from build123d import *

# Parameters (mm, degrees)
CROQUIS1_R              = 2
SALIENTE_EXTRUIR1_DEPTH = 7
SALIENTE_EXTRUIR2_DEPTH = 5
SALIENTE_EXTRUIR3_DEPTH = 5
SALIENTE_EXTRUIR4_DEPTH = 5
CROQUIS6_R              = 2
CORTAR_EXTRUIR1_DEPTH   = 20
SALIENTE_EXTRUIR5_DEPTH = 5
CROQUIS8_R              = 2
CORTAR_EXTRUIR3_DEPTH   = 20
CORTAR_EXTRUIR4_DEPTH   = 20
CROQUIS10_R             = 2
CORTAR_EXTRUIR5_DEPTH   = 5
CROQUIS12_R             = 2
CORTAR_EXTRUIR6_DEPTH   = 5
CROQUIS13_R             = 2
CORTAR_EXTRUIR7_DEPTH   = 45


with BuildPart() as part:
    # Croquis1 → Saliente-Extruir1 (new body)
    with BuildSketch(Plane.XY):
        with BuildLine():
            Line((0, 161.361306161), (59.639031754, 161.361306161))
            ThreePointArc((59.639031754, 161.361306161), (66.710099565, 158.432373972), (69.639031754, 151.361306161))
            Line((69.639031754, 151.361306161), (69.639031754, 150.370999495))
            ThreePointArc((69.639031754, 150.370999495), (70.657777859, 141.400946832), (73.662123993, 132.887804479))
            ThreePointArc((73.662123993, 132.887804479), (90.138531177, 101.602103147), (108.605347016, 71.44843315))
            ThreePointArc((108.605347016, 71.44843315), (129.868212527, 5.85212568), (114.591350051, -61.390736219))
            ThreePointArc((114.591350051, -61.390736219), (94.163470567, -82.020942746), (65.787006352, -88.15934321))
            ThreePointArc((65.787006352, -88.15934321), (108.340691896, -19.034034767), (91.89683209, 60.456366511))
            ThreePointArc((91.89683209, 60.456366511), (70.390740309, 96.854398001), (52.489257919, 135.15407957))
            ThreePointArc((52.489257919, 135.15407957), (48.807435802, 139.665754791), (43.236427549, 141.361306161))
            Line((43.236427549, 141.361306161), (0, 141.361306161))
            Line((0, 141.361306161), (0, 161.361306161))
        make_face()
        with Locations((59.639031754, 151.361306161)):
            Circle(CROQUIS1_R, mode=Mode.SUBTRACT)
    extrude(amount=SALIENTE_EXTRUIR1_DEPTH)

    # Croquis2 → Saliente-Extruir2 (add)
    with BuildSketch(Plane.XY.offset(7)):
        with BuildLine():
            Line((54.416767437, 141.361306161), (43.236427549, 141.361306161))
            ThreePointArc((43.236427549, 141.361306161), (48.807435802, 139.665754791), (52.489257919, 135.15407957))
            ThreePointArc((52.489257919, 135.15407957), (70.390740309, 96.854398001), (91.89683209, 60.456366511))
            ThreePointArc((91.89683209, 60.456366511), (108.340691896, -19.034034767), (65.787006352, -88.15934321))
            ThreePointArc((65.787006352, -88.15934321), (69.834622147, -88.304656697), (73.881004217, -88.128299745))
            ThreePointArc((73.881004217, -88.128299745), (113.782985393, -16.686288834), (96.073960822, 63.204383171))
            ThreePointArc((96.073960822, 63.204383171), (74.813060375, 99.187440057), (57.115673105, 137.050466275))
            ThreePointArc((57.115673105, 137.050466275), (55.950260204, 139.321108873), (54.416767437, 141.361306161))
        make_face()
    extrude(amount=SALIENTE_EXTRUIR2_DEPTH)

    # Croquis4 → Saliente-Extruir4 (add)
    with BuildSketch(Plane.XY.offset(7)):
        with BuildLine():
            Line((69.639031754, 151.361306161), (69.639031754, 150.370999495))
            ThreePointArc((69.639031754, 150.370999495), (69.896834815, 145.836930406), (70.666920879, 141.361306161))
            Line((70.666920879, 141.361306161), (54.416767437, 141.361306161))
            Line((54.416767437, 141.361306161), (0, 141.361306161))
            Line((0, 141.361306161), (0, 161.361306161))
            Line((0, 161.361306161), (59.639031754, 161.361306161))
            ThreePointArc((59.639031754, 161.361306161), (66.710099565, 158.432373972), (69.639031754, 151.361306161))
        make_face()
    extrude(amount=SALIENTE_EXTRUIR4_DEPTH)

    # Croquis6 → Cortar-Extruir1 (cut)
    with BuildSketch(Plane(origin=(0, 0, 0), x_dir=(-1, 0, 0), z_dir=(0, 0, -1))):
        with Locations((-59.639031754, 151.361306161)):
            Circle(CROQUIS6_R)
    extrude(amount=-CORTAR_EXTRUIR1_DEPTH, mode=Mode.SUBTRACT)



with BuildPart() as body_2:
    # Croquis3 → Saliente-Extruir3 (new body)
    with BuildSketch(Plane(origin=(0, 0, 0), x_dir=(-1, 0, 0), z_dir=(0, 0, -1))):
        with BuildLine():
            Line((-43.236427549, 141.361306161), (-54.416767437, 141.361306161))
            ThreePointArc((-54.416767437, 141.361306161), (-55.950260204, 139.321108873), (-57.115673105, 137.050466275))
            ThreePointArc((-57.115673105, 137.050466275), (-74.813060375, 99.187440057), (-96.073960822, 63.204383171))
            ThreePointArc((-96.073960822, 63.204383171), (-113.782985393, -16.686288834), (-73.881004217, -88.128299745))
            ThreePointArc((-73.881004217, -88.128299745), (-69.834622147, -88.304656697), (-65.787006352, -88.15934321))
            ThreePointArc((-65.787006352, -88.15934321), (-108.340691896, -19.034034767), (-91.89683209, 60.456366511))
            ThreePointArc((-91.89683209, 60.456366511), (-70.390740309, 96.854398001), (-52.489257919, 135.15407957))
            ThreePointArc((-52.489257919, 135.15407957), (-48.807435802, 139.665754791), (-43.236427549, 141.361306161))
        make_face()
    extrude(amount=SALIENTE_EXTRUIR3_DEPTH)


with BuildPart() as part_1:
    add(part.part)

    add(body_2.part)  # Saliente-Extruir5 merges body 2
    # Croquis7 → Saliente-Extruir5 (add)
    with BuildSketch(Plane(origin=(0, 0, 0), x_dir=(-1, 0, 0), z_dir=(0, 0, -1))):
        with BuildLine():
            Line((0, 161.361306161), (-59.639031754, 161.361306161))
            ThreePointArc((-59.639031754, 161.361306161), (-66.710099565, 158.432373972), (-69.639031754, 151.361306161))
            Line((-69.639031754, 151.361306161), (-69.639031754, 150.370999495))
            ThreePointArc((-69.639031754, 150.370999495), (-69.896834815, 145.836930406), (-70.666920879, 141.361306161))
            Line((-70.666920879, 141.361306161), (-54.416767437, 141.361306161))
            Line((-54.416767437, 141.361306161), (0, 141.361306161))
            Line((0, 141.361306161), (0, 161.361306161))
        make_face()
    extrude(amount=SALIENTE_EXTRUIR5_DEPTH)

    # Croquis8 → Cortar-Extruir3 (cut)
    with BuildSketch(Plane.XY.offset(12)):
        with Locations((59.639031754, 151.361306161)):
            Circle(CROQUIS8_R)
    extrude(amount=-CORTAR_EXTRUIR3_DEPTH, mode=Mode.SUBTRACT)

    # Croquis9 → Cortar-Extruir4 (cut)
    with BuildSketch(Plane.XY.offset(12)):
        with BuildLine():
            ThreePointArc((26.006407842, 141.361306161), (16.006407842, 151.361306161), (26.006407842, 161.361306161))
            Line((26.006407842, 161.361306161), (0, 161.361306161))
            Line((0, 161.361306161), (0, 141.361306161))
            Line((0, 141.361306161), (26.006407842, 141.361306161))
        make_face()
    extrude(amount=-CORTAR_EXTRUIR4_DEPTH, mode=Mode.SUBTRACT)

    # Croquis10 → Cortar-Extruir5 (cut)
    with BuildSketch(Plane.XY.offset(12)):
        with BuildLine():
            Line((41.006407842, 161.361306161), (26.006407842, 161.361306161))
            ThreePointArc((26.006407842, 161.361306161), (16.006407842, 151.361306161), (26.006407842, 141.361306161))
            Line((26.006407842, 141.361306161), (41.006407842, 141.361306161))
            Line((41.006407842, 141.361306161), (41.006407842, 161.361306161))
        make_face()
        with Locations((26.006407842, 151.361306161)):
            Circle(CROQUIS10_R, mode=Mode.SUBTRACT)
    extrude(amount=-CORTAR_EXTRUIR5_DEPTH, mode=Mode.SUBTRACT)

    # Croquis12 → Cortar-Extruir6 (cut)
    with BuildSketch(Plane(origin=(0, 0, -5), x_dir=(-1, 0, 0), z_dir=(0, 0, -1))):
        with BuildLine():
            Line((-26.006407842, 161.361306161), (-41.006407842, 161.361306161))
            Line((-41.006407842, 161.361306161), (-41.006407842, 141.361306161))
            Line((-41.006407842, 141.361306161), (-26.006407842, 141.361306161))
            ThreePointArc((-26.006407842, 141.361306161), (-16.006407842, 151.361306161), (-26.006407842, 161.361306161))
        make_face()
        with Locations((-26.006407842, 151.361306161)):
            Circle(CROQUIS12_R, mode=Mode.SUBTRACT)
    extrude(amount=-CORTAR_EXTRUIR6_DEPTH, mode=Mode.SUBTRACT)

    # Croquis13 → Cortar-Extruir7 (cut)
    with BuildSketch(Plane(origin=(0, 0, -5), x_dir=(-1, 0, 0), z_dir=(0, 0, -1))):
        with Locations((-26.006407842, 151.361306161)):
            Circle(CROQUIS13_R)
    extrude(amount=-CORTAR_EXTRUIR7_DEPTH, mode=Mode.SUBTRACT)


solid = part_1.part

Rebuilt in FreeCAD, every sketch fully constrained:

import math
import FreeCAD as App
import Part
import Sketcher

doc = App.newDocument("Part")
body = doc.addObject("PartDesign::Body", "Body")

# Sketch on XY plane
sketch1 = body.newObject("Sketcher::SketchObject", "Sketch")
sketch1.AttachmentSupport = (doc.getObject("XY_Plane"), [""])
sketch1.MapMode = "FlatFace"
sketch1.addGeometry([
    Part.LineSegment(App.Vector(59.639032, 161.361306, 0), App.Vector(0, 161.361306, 0)),  # 0
    Part.LineSegment(App.Vector(0, 161.361306, 0), App.Vector(0, 141.361306, 0)),  # 1
    Part.LineSegment(App.Vector(0, 141.361306, 0), App.Vector(43.236428, 141.361306, 0)),  # 2
    Part.ArcOfCircle(Part.Circle(App.Vector(43.236428, 131.361306, 0), App.Vector(0, 0, 1), 10), math.radians(22.288927), math.radians(90)),  # 3
    Part.ArcOfCircle(Part.Circle(App.Vector(458.278923, 301.48894, 0), App.Vector(0, 0, 1), 438.557338), math.radians(-157.711073), math.radians(-146.660196)),  # 4
    Part.ArcOfCircle(Part.Circle(App.Vector(0, 0, 0), App.Vector(0, 0, 1), 110), math.radians(-53.268655), math.radians(33.339804)),  # 5
    Part.ArcOfCircle(Part.Circle(App.Vector(69.639032, -37.308151, 0), App.Vector(0, 0, 1), 50.99688), math.radians(-94.331936), math.radians(-28.179566)),  # 6
    Part.ArcOfCircle(Part.Circle(App.Vector(0, 0, 0), App.Vector(0, 0, 1), 130), math.radians(-28.179566), math.radians(33.339804)),  # 7
    Part.ArcOfCircle(Part.Circle(App.Vector(564.759417, 371.539492, 0), App.Vector(0, 0, 1), 546.0139), math.radians(-154.082286), math.radians(-146.660196)),  # 8
    Part.ArcOfCircle(Part.Circle(App.Vector(109.639032, 150.370999, 0), App.Vector(0, 0, 1), 40), math.radians(180), math.radians(205.917714)),  # 9
    Part.LineSegment(App.Vector(69.639032, 150.370999, 0), App.Vector(69.639032, 151.361306, 0)),  # 10
    Part.ArcOfCircle(Part.Circle(App.Vector(59.639032, 151.361306, 0), App.Vector(0, 0, 1), 10), math.radians(0), math.radians(90)),  # 11
    Part.Circle(App.Vector(59.639032, 151.361306, 0), App.Vector(0, 0, 1), 2),  # 12
], False)
sketch1.addConstraint([
    Sketcher.Constraint("Coincident", 0, 2, 1, 1),
    Sketcher.Constraint("Coincident", 1, 2, 2, 1),
    Sketcher.Constraint("Tangent", 2, 2, 3, 2),
    Sketcher.Constraint("Tangent", 3, 1, 4, 1),
    Sketcher.Constraint("Tangent", 4, 2, 5, 2),
    Sketcher.Constraint("Coincident", 5, 1, 6, 1),
    Sketcher.Constraint("Tangent", 6, 2, 7, 1),
    Sketcher.Constraint("Tangent", 7, 2, 8, 2),
    Sketcher.Constraint("Tangent", 8, 1, 9, 2),
    Sketcher.Constraint("Tangent", 9, 1, 10, 1),
    Sketcher.Constraint("Tangent", 10, 2, 11, 1),
    Sketcher.Constraint("Tangent", 11, 2, 0, 1),
    Sketcher.Constraint("Horizontal", 0),
    Sketcher.Constraint("Vertical", 1),
    Sketcher.Constraint("Horizontal", 2),
    Sketcher.Constraint("Vertical", 10),
    Sketcher.Constraint("Coincident", 5, 3, -1, 1),
    Sketcher.Constraint("Coincident", 7, 3, -1, 1),
    Sketcher.Constraint("Coincident", 12, 3, 11, 3),
    Sketcher.Constraint("Equal", 3, 11),
    Sketcher.Constraint("PointOnObject", 0, 2, -2),
    Sketcher.Constraint("Vertical", 6, 3, 9, 1),
    Sketcher.Constraint("Diameter", 12, 4.0),
    Sketcher.Constraint("Radius", 3, 10.0),
    Sketcher.Constraint("Radius", 5, 110.0),
    Sketcher.Constraint("Radius", 7, 130.0),
    Sketcher.Constraint("Radius", 9, 40.0),
    Sketcher.Constraint("DistanceY", 1, 2, 1, 1, 20.0),
    Sketcher.Constraint("Radius", 8, 546.0139),
    Sketcher.Constraint("Radius", 6, 50.99688),
    Sketcher.Constraint("DistanceY", -1, 1, 9, 3, 150.370999),
    Sketcher.Constraint("Radius", 4, 438.557338),
    Sketcher.Constraint("DistanceX", 0, 2, 0, 1, 59.639032),
    Sketcher.Constraint("DistanceX", 2, 1, 2, 2, 43.236428),
    Sketcher.Constraint("DistanceY", 10, 1, 10, 2, 0.990307),
])
pad1 = body.newObject("PartDesign::Pad", "Pad")
pad1.Profile = sketch1
pad1.Length = 7

# Sketch on XY plane
sketch2 = body.newObject("Sketcher::SketchObject", "Sketch001")
sketch2.AttachmentSupport = (doc.getObject("XY_Plane"), [""])
sketch2.MapMode = "FlatFace"
sketch2.AttachmentOffset = App.Placement(App.Vector(0, 0, 7), App.Rotation())
sketch2.addGeometry([
    Part.LineSegment(App.Vector(54.416767, 141.361306, 0), App.Vector(43.236428, 141.361306, 0)),  # 0
    Part.ArcOfCircle(Part.Circle(App.Vector(43.236428, 131.361306, 0), App.Vector(0, 0, 1), 10), math.radians(22.288927), math.radians(90)),  # 1
    Part.ArcOfCircle(Part.Circle(App.Vector(458.278923, 301.48894, 0), App.Vector(0, 0, 1), 438.557338), math.radians(-157.711073), math.radians(-146.660196)),  # 2
    Part.ArcOfCircle(Part.Circle(App.Vector(0, 0, 0), App.Vector(0, 0, 1), 110), math.radians(-53.268655), math.radians(33.339804)),  # 3
    Part.ArcOfCircle(Part.Circle(App.Vector(69.639032, -37.308151, 0), App.Vector(0, 0, 1), 50.996881), math.radians(-94.331936), math.radians(-85.228566)),  # 4
    Part.ArcOfCircle(Part.Circle(App.Vector(0, 0, 0), App.Vector(0, 0, 1), 115), math.radians(-50.025731), math.radians(33.339804)),  # 5
    Part.ArcOfCircle(Part.Circle(App.Vector(458.278923, 301.48894, 0), App.Vector(0, 0, 1), 433.557337), math.radians(-157.711073), math.radians(-146.660196)),  # 6
    Part.ArcOfCircle(Part.Circle(App.Vector(43.236428, 131.361306, 0), App.Vector(0, 0, 1), 15), math.radians(22.288927), math.radians(41.810315)),  # 7
], False)
sketch2.addConstraint([
    Sketcher.Constraint("Tangent", 0, 2, 1, 2),
    Sketcher.Constraint("Tangent", 1, 1, 2, 1),
    Sketcher.Constraint("Tangent", 2, 2, 3, 2),
    Sketcher.Constraint("Coincident", 3, 1, 4, 1),
    Sketcher.Constraint("Coincident", 4, 2, 5, 1),
    Sketcher.Constraint("Tangent", 5, 2, 6, 2),
    Sketcher.Constraint("Tangent", 6, 1, 7, 1),
    Sketcher.Constraint("Coincident", 7, 2, 0, 1),
    Sketcher.Constraint("Horizontal", 0),
    Sketcher.Constraint("Coincident", 3, 3, -1, 1),
    Sketcher.Constraint("Coincident", 5, 3, -1, 1),
    Sketcher.Constraint("Coincident", 6, 3, 2, 3),
    Sketcher.Constraint("Coincident", 7, 3, 1, 3),
    Sketcher.Constraint("Radius", 1, 10.0),
    Sketcher.Constraint("Radius", 3, 110.0),
    Sketcher.Constraint("Radius", 5, 115.0),
    Sketcher.Constraint("Radius", 4, 50.996881),
    Sketcher.Constraint("Radius", 2, 438.557338),
    Sketcher.Constraint("DistanceY", 4, 2, -1, 1, 88.1283),
    Sketcher.Constraint("DistanceX", 4, 3, 2, 2, 22.2578),
    Sketcher.Constraint("DistanceY", -1, 1, 2, 3, 301.48894),
    Sketcher.Constraint("DistanceY", -1, 1, 1, 1, 135.15408),
])
pad2 = body.newObject("PartDesign::Pad", "Pad001")
pad2.Profile = sketch2
pad2.Length = 5

# Sketch on XY plane
sketch3 = body.newObject("Sketcher::SketchObject", "Sketch002")
sketch3.AttachmentSupport = (doc.getObject("XY_Plane"), [""])
sketch3.MapMode = "FlatFace"
sketch3.AttachmentOffset = App.Placement(App.Vector(0, 0, 7), App.Rotation())
sketch3.addGeometry([
    Part.LineSegment(App.Vector(69.639032, 150.370999, 0), App.Vector(69.639032, 151.361306, 0)),  # 0
    Part.ArcOfCircle(Part.Circle(App.Vector(59.639032, 151.361306, 0), App.Vector(0, 0, 1), 10), math.radians(0), math.radians(90)),  # 1
    Part.LineSegment(App.Vector(59.639032, 161.361306, 0), App.Vector(0, 161.361306, 0)),  # 2
    Part.LineSegment(App.Vector(0, 161.361306, 0), App.Vector(0, 141.361306, 0)),  # 3
    Part.LineSegment(App.Vector(0, 141.361306, 0), App.Vector(70.666921, 141.361306, 0)),  # 4
    Part.ArcOfCircle(Part.Circle(App.Vector(109.639032, 150.370999, 0), App.Vector(0, 0, 1), 40), math.radians(180), math.radians(193.017129)),  # 5
], False)
sketch3.addConstraint([
    Sketcher.Constraint("Tangent", 0, 2, 1, 1),
    Sketcher.Constraint("Tangent", 1, 2, 2, 1),
    Sketcher.Constraint("Coincident", 2, 2, 3, 1),
    Sketcher.Constraint("Coincident", 3, 2, 4, 1),
    Sketcher.Constraint("Coincident", 4, 2, 5, 2),
    Sketcher.Constraint("Tangent", 5, 1, 0, 1),
    Sketcher.Constraint("Vertical", 0),
    Sketcher.Constraint("Horizontal", 2),
    Sketcher.Constraint("Vertical", 3),
    Sketcher.Constraint("Horizontal", 4),
    Sketcher.Constraint("PointOnObject", 2, 2, -2),
    Sketcher.Constraint("Radius", 1, 10.0),
    Sketcher.Constraint("Radius", 5, 40.0),
    Sketcher.Constraint("DistanceY", 3, 2, 3, 1, 20.0),
    Sketcher.Constraint("DistanceY", -1, 1, 5, 3, 150.370999),
    Sketcher.Constraint("DistanceX", 2, 2, 2, 1, 59.639032),
    Sketcher.Constraint("DistanceX", 4, 1, 4, 2, 70.666921),
])
pad3 = body.newObject("PartDesign::Pad", "Pad002")
pad3.Profile = sketch3
pad3.Length = 5

# Sketch on XY plane
sketch4 = body.newObject("Sketcher::SketchObject", "Sketch003")
sketch4.AttachmentSupport = (doc.getObject("XY_Plane"), [""])
sketch4.MapMode = "FlatFace"
sketch4.addGeometry(Part.Circle(App.Vector(59.639032, 151.361306, 0), App.Vector(0, 0, 1), 2), False)
sketch4.addConstraint([
    Sketcher.Constraint("Diameter", 0, 4.0),
    Sketcher.Constraint("DistanceX", -1, 1, 0, 3, 59.639032),
    Sketcher.Constraint("DistanceY", -1, 1, 0, 3, 151.361306),
])
pocket1 = body.newObject("PartDesign::Pocket", "Pocket")
pocket1.Profile = sketch4
pocket1.Length = 20
pocket1.Reversed = True
body2 = doc.addObject("PartDesign::Body", "Body001")

# Sketch on XY plane
sketch5 = body2.newObject("Sketcher::SketchObject", "Sketch004")
sketch5.AttachmentSupport = (doc.getObject("XY_Plane001"), [""])
sketch5.MapMode = "FlatFace"
sketch5.addGeometry([
    Part.LineSegment(App.Vector(43.236428, 141.361306, 0), App.Vector(54.416767, 141.361306, 0)),  # 0
    Part.ArcOfCircle(Part.Circle(App.Vector(43.236428, 131.361306, 0), App.Vector(0, 0, 1), 15), math.radians(22.288927), math.radians(41.810315)),  # 1
    Part.ArcOfCircle(Part.Circle(App.Vector(458.278923, 301.48894, 0), App.Vector(0, 0, 1), 433.557337), math.radians(-157.711073), math.radians(-146.660196)),  # 2
    Part.ArcOfCircle(Part.Circle(App.Vector(0, 0, 0), App.Vector(0, 0, 1), 115), math.radians(-50.025731), math.radians(33.339804)),  # 3
    Part.ArcOfCircle(Part.Circle(App.Vector(69.639032, -37.308151, 0), App.Vector(0, 0, 1), 50.996881), math.radians(-94.331936), math.radians(-85.228566)),  # 4
    Part.ArcOfCircle(Part.Circle(App.Vector(0, 0, 0), App.Vector(0, 0, 1), 110), math.radians(-53.268655), math.radians(33.339804)),  # 5
    Part.ArcOfCircle(Part.Circle(App.Vector(458.278923, 301.48894, 0), App.Vector(0, 0, 1), 438.557338), math.radians(-157.711073), math.radians(-146.660196)),  # 6
    Part.ArcOfCircle(Part.Circle(App.Vector(43.236428, 131.361306, 0), App.Vector(0, 0, 1), 10), math.radians(22.288927), math.radians(90)),  # 7
], False)
sketch5.addConstraint([
    Sketcher.Constraint("Coincident", 0, 2, 1, 2),
    Sketcher.Constraint("Tangent", 1, 1, 2, 1),
    Sketcher.Constraint("Tangent", 2, 2, 3, 2),
    Sketcher.Constraint("Coincident", 3, 1, 4, 2),
    Sketcher.Constraint("Coincident", 4, 1, 5, 1),
    Sketcher.Constraint("Tangent", 5, 2, 6, 2),
    Sketcher.Constraint("Tangent", 6, 1, 7, 1),
    Sketcher.Constraint("Tangent", 7, 2, 0, 1),
    Sketcher.Constraint("Horizontal", 0),
    Sketcher.Constraint("Coincident", 3, 3, -1, 1),
    Sketcher.Constraint("Coincident", 5, 3, -1, 1),
    Sketcher.Constraint("Coincident", 6, 3, 2, 3),
    Sketcher.Constraint("Coincident", 7, 3, 1, 3),
    Sketcher.Constraint("Radius", 1, 15.0),
    Sketcher.Constraint("Radius", 3, 115.0),
    Sketcher.Constraint("Radius", 5, 110.0),
    Sketcher.Constraint("Radius", 4, 50.996881),
    Sketcher.Constraint("Radius", 2, 433.557337),
    Sketcher.Constraint("DistanceY", 3, 1, -1, 1, 88.1283),
    Sketcher.Constraint("DistanceY", 5, 2, 1, 1, 76.5941),
    Sketcher.Constraint("DistanceY", -1, 1, 2, 3, 301.48894),
    Sketcher.Constraint("DistanceX", -1, 1, 4, 3, 69.639032),
])
pad4 = body2.newObject("PartDesign::Pad", "Pad003")
pad4.Profile = sketch5
pad4.Length = 5
pad4.Reversed = True
doc.recompute()

boolean = body.newObject("PartDesign::Boolean", "Boolean")
boolean.Type = "Fuse"
boolean.addObjects([body2])

# Sketch on XY plane
sketch6 = body.newObject("Sketcher::SketchObject", "Sketch005")
sketch6.AttachmentSupport = (doc.getObject("XY_Plane"), [""])
sketch6.MapMode = "FlatFace"
sketch6.addGeometry([
    Part.LineSegment(App.Vector(0, 161.361306, 0), App.Vector(59.639032, 161.361306, 0)),  # 0
    Part.ArcOfCircle(Part.Circle(App.Vector(59.639032, 151.361306, 0), App.Vector(0, 0, 1), 10), math.radians(0), math.radians(90)),  # 1
    Part.LineSegment(App.Vector(69.639032, 151.361306, 0), App.Vector(69.639032, 150.370999, 0)),  # 2
    Part.ArcOfCircle(Part.Circle(App.Vector(109.639032, 150.370999, 0), App.Vector(0, 0, 1), 40), math.radians(180), math.radians(193.017129)),  # 3
    Part.LineSegment(App.Vector(70.666921, 141.361306, 0), App.Vector(0, 141.361306, 0)),  # 4
    Part.LineSegment(App.Vector(0, 141.361306, 0), App.Vector(0, 161.361306, 0)),  # 5
], False)
sketch6.addConstraint([
    Sketcher.Constraint("Tangent", 0, 2, 1, 2),
    Sketcher.Constraint("Tangent", 1, 1, 2, 1),
    Sketcher.Constraint("Tangent", 2, 2, 3, 1),
    Sketcher.Constraint("Coincident", 3, 2, 4, 1),
    Sketcher.Constraint("Coincident", 4, 2, 5, 1),
    Sketcher.Constraint("Coincident", 5, 2, 0, 1),
    Sketcher.Constraint("Horizontal", 0),
    Sketcher.Constraint("Vertical", 2),
    Sketcher.Constraint("Horizontal", 4),
    Sketcher.Constraint("Vertical", 5),
    Sketcher.Constraint("PointOnObject", 4, 2, -2),
    Sketcher.Constraint("Radius", 1, 10.0),
    Sketcher.Constraint("Radius", 3, 40.0),
    Sketcher.Constraint("DistanceY", 5, 1, 5, 2, 20.0),
    Sketcher.Constraint("DistanceY", -1, 1, 3, 3, 150.370999),
    Sketcher.Constraint("DistanceX", 0, 1, 0, 2, 59.639032),
    Sketcher.Constraint("DistanceX", 4, 2, 4, 1, 70.666921),
])
pad5 = body.newObject("PartDesign::Pad", "Pad004")
pad5.Profile = sketch6
pad5.Length = 5
pad5.Reversed = True

# Sketch on XY plane
sketch7 = body.newObject("Sketcher::SketchObject", "Sketch006")
sketch7.AttachmentSupport = (doc.getObject("XY_Plane"), [""])
sketch7.MapMode = "FlatFace"
sketch7.AttachmentOffset = App.Placement(App.Vector(0, 0, 12), App.Rotation())
sketch7.addGeometry(Part.Circle(App.Vector(59.639032, 151.361306, 0), App.Vector(0, 0, 1), 2), False)
sketch7.addConstraint([
    Sketcher.Constraint("Diameter", 0, 4.0),
    Sketcher.Constraint("DistanceX", -1, 1, 0, 3, 59.639032),
    Sketcher.Constraint("DistanceY", -1, 1, 0, 3, 151.361306),
])
pocket2 = body.newObject("PartDesign::Pocket", "Pocket001")
pocket2.Profile = sketch7
pocket2.Length = 20

# Sketch on XY plane
sketch8 = body.newObject("Sketcher::SketchObject", "Sketch007")
sketch8.AttachmentSupport = (doc.getObject("XY_Plane"), [""])
sketch8.MapMode = "FlatFace"
sketch8.AttachmentOffset = App.Placement(App.Vector(0, 0, 12), App.Rotation())
sketch8.addGeometry([
    Part.ArcOfCircle(Part.Circle(App.Vector(26.006408, 151.361306, 0), App.Vector(0, 0, 1), 10), math.radians(90), math.radians(270)),
    Part.LineSegment(App.Vector(26.006408, 161.361306, 0), App.Vector(0, 161.361306, 0)),
    Part.LineSegment(App.Vector(0, 161.361306, 0), App.Vector(0, 141.361306, 0)),
    Part.LineSegment(App.Vector(0, 141.361306, 0), App.Vector(26.006408, 141.361306, 0)),
], False)
sketch8.addConstraint([
    Sketcher.Constraint("Tangent", 0, 1, 1, 1),
    Sketcher.Constraint("Coincident", 1, 2, 2, 1),
    Sketcher.Constraint("Coincident", 2, 2, 3, 1),
    Sketcher.Constraint("Tangent", 3, 2, 0, 2),
    Sketcher.Constraint("Horizontal", 1),
    Sketcher.Constraint("Vertical", 2),
    Sketcher.Constraint("Horizontal", 3),
    Sketcher.Constraint("PointOnObject", 1, 2, -2),
    Sketcher.Constraint("Radius", 0, 10.0),
    Sketcher.Constraint("DistanceX", 1, 2, 1, 1, 26.006408),
    Sketcher.Constraint("DistanceY", -1, 1, 0, 3, 151.361306),
])
pocket3 = body.newObject("PartDesign::Pocket", "Pocket002")
pocket3.Profile = sketch8
pocket3.Length = 20

# Sketch on XY plane
sketch9 = body.newObject("Sketcher::SketchObject", "Sketch008")
sketch9.AttachmentSupport = (doc.getObject("XY_Plane"), [""])
sketch9.MapMode = "FlatFace"
sketch9.AttachmentOffset = App.Placement(App.Vector(0, 0, 12), App.Rotation())
sketch9.addGeometry([
    Part.LineSegment(App.Vector(41.006408, 161.361306, 0), App.Vector(26.006408, 161.361306, 0)),  # 0
    Part.ArcOfCircle(Part.Circle(App.Vector(26.006408, 151.361306, 0), App.Vector(0, 0, 1), 10), math.radians(90), math.radians(270)),  # 1
    Part.LineSegment(App.Vector(26.006408, 141.361306, 0), App.Vector(41.006408, 141.361306, 0)),  # 2
    Part.LineSegment(App.Vector(41.006408, 141.361306, 0), App.Vector(41.006408, 161.361306, 0)),  # 3
    Part.Circle(App.Vector(26.006408, 151.361306, 0), App.Vector(0, 0, 1), 2),  # 4
], False)
sketch9.addConstraint([
    Sketcher.Constraint("Tangent", 0, 2, 1, 1),
    Sketcher.Constraint("Tangent", 1, 2, 2, 1),
    Sketcher.Constraint("Coincident", 2, 2, 3, 1),
    Sketcher.Constraint("Coincident", 3, 2, 0, 1),
    Sketcher.Constraint("Horizontal", 0),
    Sketcher.Constraint("Horizontal", 2),
    Sketcher.Constraint("Vertical", 3),
    Sketcher.Constraint("Coincident", 4, 3, 1, 3),
    Sketcher.Constraint("Diameter", 4, 4.0),
    Sketcher.Constraint("Radius", 1, 10.0),
    Sketcher.Constraint("DistanceX", 0, 2, 0, 1, 15.0),
    Sketcher.Constraint("DistanceX", -1, 1, 1, 3, 26.006408),
    Sketcher.Constraint("DistanceY", -1, 1, 1, 3, 151.361306),
])
pocket4 = body.newObject("PartDesign::Pocket", "Pocket003")
pocket4.Profile = sketch9
pocket4.Length = 5

# Sketch on XY plane
sketch10 = body.newObject("Sketcher::SketchObject", "Sketch009")
sketch10.AttachmentSupport = (doc.getObject("XY_Plane"), [""])
sketch10.MapMode = "FlatFace"
sketch10.AttachmentOffset = App.Placement(App.Vector(0, 0, -5), App.Rotation())
sketch10.addGeometry([
    Part.LineSegment(App.Vector(26.006408, 161.361306, 0), App.Vector(41.006408, 161.361306, 0)),  # 0
    Part.LineSegment(App.Vector(41.006408, 161.361306, 0), App.Vector(41.006408, 141.361306, 0)),  # 1
    Part.LineSegment(App.Vector(41.006408, 141.361306, 0), App.Vector(26.006408, 141.361306, 0)),  # 2
    Part.ArcOfCircle(Part.Circle(App.Vector(26.006408, 151.361306, 0), App.Vector(0, 0, 1), 10), math.radians(90), math.radians(270)),  # 3
    Part.Circle(App.Vector(26.006408, 151.361306, 0), App.Vector(0, 0, 1), 2),  # 4
], False)
sketch10.addConstraint([
    Sketcher.Constraint("Coincident", 0, 2, 1, 1),
    Sketcher.Constraint("Coincident", 1, 2, 2, 1),
    Sketcher.Constraint("Tangent", 2, 2, 3, 2),
    Sketcher.Constraint("Tangent", 3, 1, 0, 1),
    Sketcher.Constraint("Horizontal", 0),
    Sketcher.Constraint("Vertical", 1),
    Sketcher.Constraint("Horizontal", 2),
    Sketcher.Constraint("Coincident", 4, 3, 3, 3),
    Sketcher.Constraint("Diameter", 4, 4.0),
    Sketcher.Constraint("Radius", 3, 10.0),
    Sketcher.Constraint("DistanceX", 0, 1, 0, 2, 15.0),
    Sketcher.Constraint("DistanceX", -1, 1, 3, 3, 26.006408),
    Sketcher.Constraint("DistanceY", -1, 1, 3, 3, 151.361306),
])
pocket5 = body.newObject("PartDesign::Pocket", "Pocket004")
pocket5.Profile = sketch10
pocket5.Length = 5
pocket5.Reversed = True

# Sketch on XY plane
sketch11 = body.newObject("Sketcher::SketchObject", "Sketch010")
sketch11.AttachmentSupport = (doc.getObject("XY_Plane"), [""])
sketch11.MapMode = "FlatFace"
sketch11.AttachmentOffset = App.Placement(App.Vector(0, 0, -5), App.Rotation())
sketch11.addGeometry(Part.Circle(App.Vector(26.006408, 151.361306, 0), App.Vector(0, 0, 1), 2), False)
sketch11.addConstraint([
    Sketcher.Constraint("Diameter", 0, 4.0),
    Sketcher.Constraint("DistanceX", -1, 1, 0, 3, 26.006408),
    Sketcher.Constraint("DistanceY", -1, 1, 0, 3, 151.361306),
])
pocket6 = body.newObject("PartDesign::Pocket", "Pocket005")
pocket6.Profile = sketch11
pocket6.Length = 45
pocket6.Reversed = True

doc.recompute()
